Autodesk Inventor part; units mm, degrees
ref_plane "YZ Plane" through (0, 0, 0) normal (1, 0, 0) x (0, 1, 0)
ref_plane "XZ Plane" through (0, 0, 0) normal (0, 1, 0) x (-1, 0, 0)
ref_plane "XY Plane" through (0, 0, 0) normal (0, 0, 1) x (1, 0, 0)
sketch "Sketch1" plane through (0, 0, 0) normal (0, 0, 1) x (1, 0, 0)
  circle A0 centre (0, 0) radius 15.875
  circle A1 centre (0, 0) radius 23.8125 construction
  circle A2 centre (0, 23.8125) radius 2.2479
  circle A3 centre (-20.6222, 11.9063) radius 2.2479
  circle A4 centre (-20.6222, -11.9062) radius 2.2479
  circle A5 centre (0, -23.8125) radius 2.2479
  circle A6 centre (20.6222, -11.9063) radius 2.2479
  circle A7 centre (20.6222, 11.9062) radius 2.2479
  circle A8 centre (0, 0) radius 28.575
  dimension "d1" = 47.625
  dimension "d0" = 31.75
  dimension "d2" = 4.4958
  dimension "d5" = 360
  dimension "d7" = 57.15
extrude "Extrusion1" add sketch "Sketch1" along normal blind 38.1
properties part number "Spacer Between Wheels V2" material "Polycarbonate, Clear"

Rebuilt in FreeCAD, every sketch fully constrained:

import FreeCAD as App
import Part
import Sketcher
from FreeCAD import Vector
Q = App.Units.Quantity

doc = App.newDocument("Part")
body = doc.addObject("PartDesign::Body", "Body")

# Sketch on XY plane
sketch1 = body.newObject("Sketcher::SketchObject", "Sketch")
sketch1.AttachmentSupport = (doc.getObject("XY_Plane"), [""])
sketch1.MapMode = "FlatFace"
sketch1.addGeometry(Part.Circle(Vector(0, 0, 0), Vector(0, 0, 1), 28.575), False)
sketch1.addGeometry(Part.Circle(Vector(-20.6222, -11.9062, 0), Vector(0, 0, 1), 2.2479), False)
sketch1.addGeometry(Part.Circle(Vector(0, -23.8125, 0), Vector(0, 0, 1), 2.2479), False)
sketch1.addGeometry(Part.Circle(Vector(20.6222, -11.9063, 0), Vector(0, 0, 1), 2.2479), False)
sketch1.addGeometry(Part.Circle(Vector(-20.6222, 11.9063, 0), Vector(0, 0, 1), 2.2479), False)
sketch1.addGeometry(Part.Circle(Vector(0, 0, 0), Vector(0, 0, 1), 15.875), False)
sketch1.addGeometry(Part.Circle(Vector(20.6222, 11.9062, 0), Vector(0, 0, 1), 2.2479), False)
sketch1.addGeometry(Part.Circle(Vector(0, 23.8125, 0), Vector(0, 0, 1), 2.2479), False)
sketch1.addConstraint(Sketcher.Constraint("Coincident", 0, 3, -1, 1))
sketch1.addConstraint(Sketcher.Constraint("Coincident", 5, 3, -1, 1))
sketch1.addConstraint(Sketcher.Constraint("Equal", 1, 2))
sketch1.addConstraint(Sketcher.Constraint("Equal", 2, 3))
sketch1.addConstraint(Sketcher.Constraint("Equal", 3, 4))
sketch1.addConstraint(Sketcher.Constraint("Equal", 4, 6))
sketch1.addConstraint(Sketcher.Constraint("Equal", 6, 7))
sketch1.addConstraint(Sketcher.Constraint("Symmetric", 3, 3, 4, 3, -1, 1))
sketch1.addConstraint(Sketcher.Constraint("Symmetric", 1, 3, 6, 3, -1, 1))
sketch1.addConstraint(Sketcher.Constraint("Symmetric", 2, 3, 7, 3, -1, 1))
sketch1.addConstraint(Sketcher.Constraint("Symmetric", 1, 3, 3, 3, -2))
sketch1.addConstraint(Sketcher.Constraint("PointOnObject", 2, 3, -2))
sketch1.addConstraint(Sketcher.Constraint("Diameter", 0, Q("2.25 in")))
sketch1.addConstraint(Sketcher.Constraint("Diameter", 5, Q("1.25 in")))
sketch1.addConstraint(Sketcher.Constraint("Diameter", 1, Q("0.177 in")))
sketch1.addConstraint(Sketcher.Constraint("DistanceY", 1, 3, -1, 1, Q("0.468748 in")))
sketch1.addConstraint(Sketcher.Constraint("DistanceY", 2, 3, -1, 1, Q("0.9375 in")))
sketch1.addConstraint(Sketcher.Constraint("DistanceX", 1, 3, -1, 1, Q("0.8119 in")))
pad1 = body.newObject("PartDesign::Pad", "Pad")
pad1.Profile = sketch1
pad1.Length = Q("1.5 in")

doc.recompute()
